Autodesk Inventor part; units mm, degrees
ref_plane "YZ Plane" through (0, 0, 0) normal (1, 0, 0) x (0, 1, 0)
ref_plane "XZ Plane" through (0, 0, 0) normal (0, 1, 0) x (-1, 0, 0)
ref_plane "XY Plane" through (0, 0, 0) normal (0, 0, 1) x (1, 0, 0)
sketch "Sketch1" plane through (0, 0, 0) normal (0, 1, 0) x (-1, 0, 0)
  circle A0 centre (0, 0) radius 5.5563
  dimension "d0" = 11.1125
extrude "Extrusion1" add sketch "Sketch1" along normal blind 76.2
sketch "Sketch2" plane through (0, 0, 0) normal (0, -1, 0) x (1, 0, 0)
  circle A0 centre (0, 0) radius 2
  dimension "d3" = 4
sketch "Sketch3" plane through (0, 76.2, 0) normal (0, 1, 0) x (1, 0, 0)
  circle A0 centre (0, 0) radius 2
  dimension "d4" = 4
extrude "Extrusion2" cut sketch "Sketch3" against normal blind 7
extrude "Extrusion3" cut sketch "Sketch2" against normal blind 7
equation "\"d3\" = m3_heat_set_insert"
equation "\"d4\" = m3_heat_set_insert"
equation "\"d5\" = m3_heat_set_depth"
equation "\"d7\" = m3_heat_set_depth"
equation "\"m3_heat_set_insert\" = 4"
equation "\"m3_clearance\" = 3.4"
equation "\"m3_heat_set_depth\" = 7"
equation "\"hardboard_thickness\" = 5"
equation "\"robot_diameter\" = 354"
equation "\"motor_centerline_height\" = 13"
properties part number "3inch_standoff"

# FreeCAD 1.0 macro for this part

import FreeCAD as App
import Part
import Sketcher

V = App.Vector
Q = App.Units.Quantity

doc = App.newDocument("Part")
params = doc.addObject("Spreadsheet::Sheet", "Params")
for row, (alias, value) in enumerate([
    ("sketch1_diameter", "0.4375 in"),
    ("pad1_length", "3 in"),
    ("pocket1_length", "0.2755906 in"),
    ("pocket2_length", "0.2755906 in"),
], start=1):
    params.set(f"A{row}", alias)
    params.set(f"B{row}", "=" + value)
    params.setAlias(f"B{row}", alias)

body = doc.addObject("PartDesign::Body", "Body")

# Sketch on XZ plane
sketch1 = body.newObject("Sketcher::SketchObject", "Sketch")
sketch1.AttachmentSupport = (doc.getObject("XZ_Plane"), [""])
sketch1.MapMode = "FlatFace"
sketch1.addGeometry(Part.Circle(V(0, 0, 0), V(0, 0, 1), 6), False)
sketch1.addConstraint([
    Sketcher.Constraint("Coincident", 0, 3, -1, 1),
    Sketcher.Constraint("Diameter", 0, Q("0.4375 in")),
])
sketch1.setExpression("Constraints[1]", "Params.sketch1_diameter")
pad1 = body.newObject("PartDesign::Pad", "Pad")
pad1.Profile = sketch1
pad1.setExpression("Length", "Params.pad1_length")
pad1.Reversed = True

# Sketch on XZ plane
sketch2 = body.newObject("Sketcher::SketchObject", "Sketch001")
sketch2.AttachmentSupport = (doc.getObject("XZ_Plane"), [""])
sketch2.MapMode = "FlatFace"
sketch2.AttachmentOffset = App.Placement(V(0, 0, -3 * 25.4), App.Rotation())
sketch2.addGeometry(Part.Circle(V(0, 0, 0), V(0, 0, 1), 2), False)
sketch2.addConstraint([
    Sketcher.Constraint("Coincident", 0, 3, -1, 1),
    Sketcher.Constraint("Diameter", 0, 4.0),
])
pocket1 = body.newObject("PartDesign::Pocket", "Pocket")
pocket1.Profile = sketch2
pocket1.setExpression("Length", "Params.pocket1_length")
pocket1.Reversed = True

# Sketch on XZ plane
sketch3 = body.newObject("Sketcher::SketchObject", "Sketch002")
sketch3.AttachmentSupport = (doc.getObject("XZ_Plane"), [""])
sketch3.MapMode = "FlatFace"
sketch3.addGeometry(Part.Circle(V(0, 0, 0), V(0, 0, 1), 2), False)
sketch3.addConstraint([
    Sketcher.Constraint("Coincident", 0, 3, -1, 1),
    Sketcher.Constraint("Diameter", 0, 4.0),
])
pocket2 = body.newObject("PartDesign::Pocket", "Pocket001")
pocket2.Profile = sketch3
pocket2.setExpression("Length", "Params.pocket2_length")

doc.recompute()
